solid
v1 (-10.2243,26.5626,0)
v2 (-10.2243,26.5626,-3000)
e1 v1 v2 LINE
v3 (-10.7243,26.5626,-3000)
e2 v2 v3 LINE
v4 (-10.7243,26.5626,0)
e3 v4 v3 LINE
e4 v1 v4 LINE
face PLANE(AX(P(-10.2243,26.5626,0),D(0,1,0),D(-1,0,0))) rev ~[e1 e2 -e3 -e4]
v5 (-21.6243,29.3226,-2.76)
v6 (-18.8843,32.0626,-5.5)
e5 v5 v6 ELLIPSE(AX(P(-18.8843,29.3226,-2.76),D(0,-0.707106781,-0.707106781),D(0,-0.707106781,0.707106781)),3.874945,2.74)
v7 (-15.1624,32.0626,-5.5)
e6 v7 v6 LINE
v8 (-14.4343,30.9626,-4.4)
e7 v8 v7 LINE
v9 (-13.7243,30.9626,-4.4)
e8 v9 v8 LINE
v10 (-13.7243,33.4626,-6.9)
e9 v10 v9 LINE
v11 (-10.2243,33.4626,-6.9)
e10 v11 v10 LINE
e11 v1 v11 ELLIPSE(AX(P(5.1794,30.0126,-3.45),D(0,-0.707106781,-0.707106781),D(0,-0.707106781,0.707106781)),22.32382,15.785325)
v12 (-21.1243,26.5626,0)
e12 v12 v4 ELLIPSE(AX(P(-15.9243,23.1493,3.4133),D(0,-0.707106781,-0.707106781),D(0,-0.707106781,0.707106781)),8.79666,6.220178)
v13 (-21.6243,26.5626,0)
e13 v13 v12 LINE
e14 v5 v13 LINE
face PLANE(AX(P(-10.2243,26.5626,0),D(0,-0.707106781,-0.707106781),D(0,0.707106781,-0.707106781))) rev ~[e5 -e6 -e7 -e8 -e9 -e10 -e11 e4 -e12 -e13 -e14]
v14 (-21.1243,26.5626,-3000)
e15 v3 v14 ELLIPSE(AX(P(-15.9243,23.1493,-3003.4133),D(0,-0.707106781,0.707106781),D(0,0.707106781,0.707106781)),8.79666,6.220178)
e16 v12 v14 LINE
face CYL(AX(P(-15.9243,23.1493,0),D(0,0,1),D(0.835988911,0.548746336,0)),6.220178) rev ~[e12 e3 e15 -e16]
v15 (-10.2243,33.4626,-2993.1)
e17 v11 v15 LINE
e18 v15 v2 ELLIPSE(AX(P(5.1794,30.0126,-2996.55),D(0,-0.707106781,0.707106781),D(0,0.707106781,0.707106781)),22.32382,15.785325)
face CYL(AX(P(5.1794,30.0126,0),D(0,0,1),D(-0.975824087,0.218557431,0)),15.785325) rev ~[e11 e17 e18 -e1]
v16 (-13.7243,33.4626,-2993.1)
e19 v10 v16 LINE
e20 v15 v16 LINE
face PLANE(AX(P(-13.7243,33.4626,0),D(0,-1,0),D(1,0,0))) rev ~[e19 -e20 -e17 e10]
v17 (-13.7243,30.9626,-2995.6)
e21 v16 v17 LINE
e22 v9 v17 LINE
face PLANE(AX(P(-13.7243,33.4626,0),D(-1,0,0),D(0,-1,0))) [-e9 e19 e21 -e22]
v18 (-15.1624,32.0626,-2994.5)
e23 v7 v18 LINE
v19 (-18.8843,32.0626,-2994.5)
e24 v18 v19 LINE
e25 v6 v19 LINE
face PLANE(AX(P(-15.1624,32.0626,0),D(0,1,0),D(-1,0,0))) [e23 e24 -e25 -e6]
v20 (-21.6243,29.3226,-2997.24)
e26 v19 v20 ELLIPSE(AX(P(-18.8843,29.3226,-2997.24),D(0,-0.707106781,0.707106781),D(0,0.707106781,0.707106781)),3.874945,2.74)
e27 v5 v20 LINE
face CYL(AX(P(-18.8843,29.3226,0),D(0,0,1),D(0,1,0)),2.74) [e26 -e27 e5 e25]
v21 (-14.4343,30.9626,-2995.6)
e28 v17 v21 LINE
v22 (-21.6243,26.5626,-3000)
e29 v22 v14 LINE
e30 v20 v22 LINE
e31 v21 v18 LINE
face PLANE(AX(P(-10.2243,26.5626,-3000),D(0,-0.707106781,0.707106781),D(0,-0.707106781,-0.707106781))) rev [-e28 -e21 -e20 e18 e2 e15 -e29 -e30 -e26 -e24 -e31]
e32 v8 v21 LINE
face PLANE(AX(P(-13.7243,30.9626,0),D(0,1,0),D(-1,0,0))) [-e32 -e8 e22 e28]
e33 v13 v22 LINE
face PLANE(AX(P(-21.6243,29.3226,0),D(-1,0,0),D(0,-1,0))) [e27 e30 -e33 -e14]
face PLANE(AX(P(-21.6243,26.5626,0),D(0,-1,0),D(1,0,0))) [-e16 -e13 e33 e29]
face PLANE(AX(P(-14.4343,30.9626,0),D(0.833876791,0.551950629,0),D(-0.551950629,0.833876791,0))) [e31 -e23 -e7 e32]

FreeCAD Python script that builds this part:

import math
import FreeCAD as App
import Part
import Sketcher

V = App.Vector
Q = App.Units.Quantity

doc = App.newDocument("Part")
body = doc.addObject("PartDesign::Body", "Body")

# Sketch on XY plane
sketch1 = doc.addObject("Sketcher::SketchObject", "Sketch")
body.addObject(sketch1)
sketch1.AttachmentSupport = (doc.XY_Plane, [""])
sketch1.MapMode = "FlatFace"
sketch1.addGeometry(Part.LineSegment(V(-14.4343, 30.9626, 0), V(-15.1624, 32.0626, 0)), False)
sketch1.addGeometry(Part.LineSegment(V(-15.1624, 32.0626, 0), V(-18.8843, 32.0626, 0)), False)
sketch1.addGeometry(Part.ArcOfCircle(Part.Circle(V(-18.8843, 29.3226, 0), V(0, 0, 1), 2.74), math.radians(90), math.radians(180)), False)
sketch1.addGeometry(Part.LineSegment(V(-21.6243, 29.3226, 0), V(-21.6243, 26.5626, 0)), False)
sketch1.addGeometry(Part.LineSegment(V(-21.6243, 26.5626, 0), V(-21.1243, 26.5626, 0)), False)
sketch1.addGeometry(Part.ArcOfCircle(Part.Circle(V(-15.9243, 23.1493, 0), V(0, 0, 1), 6.220178), math.radians(33.281049), math.radians(146.718951)), False)
sketch1.addGeometry(Part.LineSegment(V(-10.7243, 26.5626, 0), V(-10.2243, 26.5626, 0)), False)
sketch1.addGeometry(Part.ArcOfCircle(Part.Circle(V(5.1794, 30.0126, 0), V(0, 0, 1), 15.785325), math.radians(167.375682), math.radians(192.624318)), False)
sketch1.addGeometry(Part.LineSegment(V(-10.2243, 33.4626, 0), V(-13.7243, 33.4626, 0)), False)
sketch1.addGeometry(Part.LineSegment(V(-13.7243, 33.4626, 0), V(-13.7243, 30.9626, 0)), False)
sketch1.addGeometry(Part.LineSegment(V(-13.7243, 30.9626, 0), V(-14.4343, 30.9626, 0)), False)
sketch1.addConstraint(Sketcher.Constraint("Coincident", 0, 2, 1, 1))
sketch1.addConstraint(Sketcher.Constraint("Tangent", 1, 2, 2, 1))
sketch1.addConstraint(Sketcher.Constraint("Tangent", 2, 2, 3, 1))
sketch1.addConstraint(Sketcher.Constraint("Coincident", 3, 2, 4, 1))
sketch1.addConstraint(Sketcher.Constraint("Coincident", 4, 2, 5, 2))
sketch1.addConstraint(Sketcher.Constraint("Coincident", 5, 1, 6, 1))
sketch1.addConstraint(Sketcher.Constraint("Coincident", 6, 2, 7, 2))
sketch1.addConstraint(Sketcher.Constraint("Coincident", 7, 1, 8, 1))
sketch1.addConstraint(Sketcher.Constraint("Coincident", 8, 2, 9, 1))
sketch1.addConstraint(Sketcher.Constraint("Coincident", 9, 2, 10, 1))
sketch1.addConstraint(Sketcher.Constraint("Coincident", 10, 2, 0, 1))
sketch1.addConstraint(Sketcher.Constraint("Horizontal", 1))
sketch1.addConstraint(Sketcher.Constraint("Vertical", 3))
sketch1.addConstraint(Sketcher.Constraint("Horizontal", 4))
sketch1.addConstraint(Sketcher.Constraint("Horizontal", 6))
sketch1.addConstraint(Sketcher.Constraint("Horizontal", 8))
sketch1.addConstraint(Sketcher.Constraint("Vertical", 9))
sketch1.addConstraint(Sketcher.Constraint("Horizontal", 10))
sketch1.addConstraint(Sketcher.Constraint("Horizontal", 4, 2, 5, 1))
sketch1.addConstraint(Sketcher.Constraint("Vertical", 6, 2, 7, 1))
sketch1.addConstraint(Sketcher.Constraint("Equal", 4, 6))
sketch1.addConstraint(Sketcher.Constraint("Radius", 2, 2.74))
sketch1.addConstraint(Sketcher.Constraint("DistanceX", 4, 1, 4, 2, 0.5))
sketch1.addConstraint(Sketcher.Constraint("DistanceX", 8, 2, 8, 1, 3.5))
sketch1.addConstraint(Sketcher.Constraint("DistanceY", 9, 2, 9, 1, 2.5))
sketch1.addConstraint(Sketcher.Constraint("DistanceX", 10, 2, 10, 1, 0.71))
sketch1.addConstraint(Sketcher.Constraint("DistanceY", 3, 2, 3, 1, 2.76))
sketch1.addConstraint(Sketcher.Constraint("Angle", 0, Q("123.501 deg")))
sketch1.addConstraint(Sketcher.Constraint("Radius", 5, 6.2202))
sketch1.addConstraint(Sketcher.Constraint("Radius", 7, 15.7853))
sketch1.addConstraint(Sketcher.Constraint("DistanceX", 2, 2, 5, 3, 5.7))
sketch1.addConstraint(Sketcher.Constraint("DistanceY", 0, 2, 7, 1, 1.4))
sketch1.addConstraint(Sketcher.Constraint("DistanceX", 2, 3, -1, 1, 18.8843))
sketch1.addConstraint(Sketcher.Constraint("DistanceY", -1, 1, 2, 3, 29.3226))
pad1 = doc.addObject("PartDesign::Pad", "Pad")
body.addObject(pad1)
pad1.Profile = sketch1
pad1.Length = 3000
pad1.Reversed = True

# Sketch on YZ plane
sketch2 = doc.addObject("Sketcher::SketchObject", "Sketch001")
body.addObject(sketch2)
sketch2.AttachmentSupport = (doc.YZ_Plane, [""])
sketch2.MapMode = "FlatFace"
sketch2.AttachmentOffset = App.Placement(V(0, 0, -10.2243), App.Rotation())
sketch2.addGeometry(Part.LineSegment(V(26.5626, 0, 0), V(33.4626, 0, 0)), False)
sketch2.addGeometry(Part.LineSegment(V(33.4626, 0, 0), V(33.4626, -6.9, 0)), False)
sketch2.addGeometry(Part.LineSegment(V(33.4626, -6.9, 0), V(26.5626, 0, 0)), False)
sketch2.addConstraint(Sketcher.Constraint("Coincident", 0, 2, 1, 1))
sketch2.addConstraint(Sketcher.Constraint("Coincident", 1, 2, 2, 1))
sketch2.addConstraint(Sketcher.Constraint("Coincident", 2, 2, 0, 1))
sketch2.addConstraint(Sketcher.Constraint("Horizontal", 0))
sketch2.addConstraint(Sketcher.Constraint("Vertical", 1))
sketch2.addConstraint(Sketcher.Constraint("PointOnObject", 0, 2, -1))
sketch2.addConstraint(Sketcher.Constraint("Equal", 0, 1))
sketch2.addConstraint(Sketcher.Constraint("DistanceX", 0, 1, 0, 2, 6.9))
sketch2.addConstraint(Sketcher.Constraint("DistanceX", -1, 1, 0, 2, 33.4626))
pocket1 = doc.addObject("PartDesign::Pocket", "Pocket")
body.addObject(pocket1)
pocket1.Profile = sketch2
pocket1.Type = "ThroughAll"
doc.recompute()

datumplane = doc.addObject("PartDesign::Plane", "DatumPlane")
body.addObject(datumplane)
datumplane.AttachmentSupport = (doc.XY_Plane, [""])
datumplane.MapMode = "FlatFace"
datumplane.AttachmentOffset = App.Placement(V(0, 0, -1500), App.Rotation())
mirrored = doc.addObject("PartDesign::Mirrored", "Mirrored")
body.addObject(mirrored)
mirrored.Originals = [pocket1]
mirrored.MirrorPlane = (datumplane, [""])
body.Tip = mirrored

doc.recompute()
